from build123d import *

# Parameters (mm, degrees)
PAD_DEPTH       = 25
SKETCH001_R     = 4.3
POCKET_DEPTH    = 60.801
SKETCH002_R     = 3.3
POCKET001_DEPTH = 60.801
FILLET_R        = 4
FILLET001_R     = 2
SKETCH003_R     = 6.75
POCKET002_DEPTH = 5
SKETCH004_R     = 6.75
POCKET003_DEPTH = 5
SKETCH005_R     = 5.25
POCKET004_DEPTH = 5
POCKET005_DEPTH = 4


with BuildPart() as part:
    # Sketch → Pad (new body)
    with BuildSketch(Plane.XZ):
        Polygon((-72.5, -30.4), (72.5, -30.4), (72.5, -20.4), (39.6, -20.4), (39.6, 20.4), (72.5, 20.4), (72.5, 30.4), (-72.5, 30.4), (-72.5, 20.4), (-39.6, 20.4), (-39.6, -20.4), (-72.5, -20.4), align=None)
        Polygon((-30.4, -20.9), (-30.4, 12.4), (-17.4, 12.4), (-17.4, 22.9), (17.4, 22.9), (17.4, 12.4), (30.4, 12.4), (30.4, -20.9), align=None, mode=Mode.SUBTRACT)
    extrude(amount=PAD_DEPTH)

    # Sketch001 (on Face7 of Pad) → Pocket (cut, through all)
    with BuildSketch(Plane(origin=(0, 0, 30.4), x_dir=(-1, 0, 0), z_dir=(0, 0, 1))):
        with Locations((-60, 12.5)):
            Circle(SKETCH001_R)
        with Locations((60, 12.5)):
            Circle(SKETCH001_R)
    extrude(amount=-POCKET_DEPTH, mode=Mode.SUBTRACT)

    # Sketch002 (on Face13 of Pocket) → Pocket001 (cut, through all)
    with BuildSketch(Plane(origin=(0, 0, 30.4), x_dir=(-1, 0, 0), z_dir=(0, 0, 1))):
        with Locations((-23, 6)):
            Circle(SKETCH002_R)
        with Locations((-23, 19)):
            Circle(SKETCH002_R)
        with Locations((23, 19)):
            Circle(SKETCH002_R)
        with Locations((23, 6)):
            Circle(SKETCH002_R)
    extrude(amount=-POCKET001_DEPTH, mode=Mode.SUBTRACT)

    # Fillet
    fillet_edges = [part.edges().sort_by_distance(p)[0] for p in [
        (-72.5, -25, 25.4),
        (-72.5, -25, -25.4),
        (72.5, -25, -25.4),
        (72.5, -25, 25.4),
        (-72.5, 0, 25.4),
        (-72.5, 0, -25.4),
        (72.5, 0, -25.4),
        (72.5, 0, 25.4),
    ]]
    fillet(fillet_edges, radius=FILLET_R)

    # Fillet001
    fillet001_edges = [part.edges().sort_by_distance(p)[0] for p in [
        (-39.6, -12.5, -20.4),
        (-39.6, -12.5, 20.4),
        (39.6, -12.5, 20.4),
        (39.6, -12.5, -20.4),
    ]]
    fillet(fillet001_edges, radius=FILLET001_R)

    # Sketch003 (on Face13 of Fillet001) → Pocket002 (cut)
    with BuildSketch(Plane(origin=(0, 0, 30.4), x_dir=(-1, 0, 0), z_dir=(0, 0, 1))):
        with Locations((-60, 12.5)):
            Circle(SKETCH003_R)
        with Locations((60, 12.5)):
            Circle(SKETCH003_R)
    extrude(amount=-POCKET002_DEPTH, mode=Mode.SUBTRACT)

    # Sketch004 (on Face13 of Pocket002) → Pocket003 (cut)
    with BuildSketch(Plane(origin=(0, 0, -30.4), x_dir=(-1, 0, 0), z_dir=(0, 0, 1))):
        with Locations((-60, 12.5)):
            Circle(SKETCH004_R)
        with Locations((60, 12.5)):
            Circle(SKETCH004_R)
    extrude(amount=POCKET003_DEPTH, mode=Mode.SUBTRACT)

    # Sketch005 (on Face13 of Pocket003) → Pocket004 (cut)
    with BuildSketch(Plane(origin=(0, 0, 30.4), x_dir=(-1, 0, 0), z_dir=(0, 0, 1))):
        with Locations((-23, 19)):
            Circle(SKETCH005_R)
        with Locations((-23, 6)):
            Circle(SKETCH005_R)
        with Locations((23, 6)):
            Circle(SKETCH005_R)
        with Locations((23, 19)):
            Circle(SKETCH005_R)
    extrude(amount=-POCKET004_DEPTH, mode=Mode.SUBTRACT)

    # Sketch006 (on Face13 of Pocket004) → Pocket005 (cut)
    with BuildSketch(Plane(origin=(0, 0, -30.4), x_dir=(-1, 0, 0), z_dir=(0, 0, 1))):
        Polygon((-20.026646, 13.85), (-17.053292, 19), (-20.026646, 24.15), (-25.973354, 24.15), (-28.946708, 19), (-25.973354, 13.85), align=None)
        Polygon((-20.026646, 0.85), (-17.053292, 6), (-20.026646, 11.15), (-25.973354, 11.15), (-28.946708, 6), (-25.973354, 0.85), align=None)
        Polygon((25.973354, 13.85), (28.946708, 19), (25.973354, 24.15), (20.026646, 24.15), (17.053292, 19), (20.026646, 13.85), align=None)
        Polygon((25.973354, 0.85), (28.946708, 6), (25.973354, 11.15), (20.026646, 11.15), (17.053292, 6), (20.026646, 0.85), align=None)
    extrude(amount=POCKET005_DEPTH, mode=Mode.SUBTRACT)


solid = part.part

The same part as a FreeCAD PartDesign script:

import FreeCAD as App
import Part
import Sketcher

V = App.Vector
Q = App.Units.Quantity


def edges_at(feature, points):
    """Names of the edges that pass closest to the given points."""
    edges = feature.Shape.Edges
    near = lambda p: min(range(len(edges)), key=lambda i: edges[i].distToShape(Part.Vertex(*p))[0])
    return sorted({f"Edge{near(p) + 1}" for p in points})


def add_polygon(sketch, points):
    """Adds a closed chain of lines whose ends are joined by coincident constraints."""
    first, n = sketch.GeometryCount, len(points)
    for a, b in zip(points, points[1:] + points[:1]):
        sketch.addGeometry(Part.LineSegment(App.Vector(*a, 0), App.Vector(*b, 0)), False)
    for i in range(n):
        sketch.addConstraint(Sketcher.Constraint("Coincident", first + i, 2, first + (i + 1) % n, 1))

doc = App.newDocument("Part")
body = doc.addObject("PartDesign::Body", "Body")

sketch1 = body.newObject("Sketcher::SketchObject", "Sketch")
sketch1.AttachmentSupport = (doc.getObject("XZ_Plane"), [""])
sketch1.MapMode = "FlatFace"
add_polygon(sketch1, [(-72.5, -30.4), (72.5, -30.4), (72.5, -20.4), (39.6, -20.4), (39.6, 20.4), (72.5, 20.4), (72.5, 30.4), (-72.5, 30.4), (-72.5, 20.4), (-39.6, 20.4), (-39.6, -20.4), (-72.5, -20.4)])
add_polygon(sketch1, [(30.4, -20.9), (-30.4, -20.9), (-30.4, 12.4), (-17.4, 12.4), (-17.4, 22.9), (17.4, 22.9), (17.4, 12.4), (30.4, 12.4)])
sketch1.addConstraint([
    Sketcher.Constraint("Horizontal", 0),
    Sketcher.Constraint("Vertical", 1),
    Sketcher.Constraint("Horizontal", 2),
    Sketcher.Constraint("Vertical", 3),
    Sketcher.Constraint("Horizontal", 4),
    Sketcher.Constraint("Vertical", 5),
    Sketcher.Constraint("Horizontal", 6),
    Sketcher.Constraint("Vertical", 7),
    Sketcher.Constraint("Horizontal", 8),
    Sketcher.Constraint("Vertical", 9),
    Sketcher.Constraint("Horizontal", 10),
    Sketcher.Constraint("Vertical", 11),
    Sketcher.Constraint("Horizontal", 12),
    Sketcher.Constraint("Vertical", 13),
    Sketcher.Constraint("Horizontal", 14),
    Sketcher.Constraint("Vertical", 15),
    Sketcher.Constraint("Horizontal", 16),
    Sketcher.Constraint("Vertical", 17),
    Sketcher.Constraint("Horizontal", 18),
    Sketcher.Constraint("Vertical", 19),
    Sketcher.Constraint("Symmetric", 0, 2, 6, 2, -1, 1),
    Sketcher.Constraint("Symmetric", 2, 2, 8, 2, -1, 1),
    Sketcher.Constraint("Symmetric", 4, 2, 10, 2, -1, 1),
    Sketcher.Constraint("Symmetric", 4, 2, 7, 2, -2),
    Sketcher.Constraint("Symmetric", 14, 2, 17, 2, -2),
    Sketcher.Constraint("Equal", 14, 18),
    Sketcher.Constraint("DistanceX", 0, 1, 0, 2, 145.0),
    Sketcher.Constraint("DistanceX", 14, 1, 14, 2, 13.0),
    Sketcher.Constraint("DistanceY", 1, 1, 1, 2, 10.0),
    Sketcher.Constraint("DistanceX", 2, 2, 2, 1, 32.9),
    Sketcher.Constraint("DistanceX", 12, 2, 12, 1, 60.8),
    Sketcher.Constraint("DistanceY", 3, 1, 3, 2, 40.8),
    Sketcher.Constraint("DistanceY", 13, 1, 13, 2, 33.3),
    Sketcher.Constraint("DistanceY", 15, 1, 15, 2, 10.5),
    Sketcher.Constraint("DistanceY", 13, 2, 8, 2, 8.0),
])
pad1 = body.newObject("PartDesign::Pad", "Pad")
pad1.Profile = sketch1
pad1.Length = 25

sketch2 = body.newObject("Sketcher::SketchObject", "Sketch001")
sketch2.AttachmentSupport = (doc.getObject("XY_Plane"), [""])
sketch2.MapMode = "FlatFace"
sketch2.AttachmentOffset = App.Placement(V(0, 0, 30.4), App.Rotation())
sketch2.addGeometry([
    Part.Circle(V(60, -12.5, 0), V(0, 0, 1), 4.3),
    Part.Circle(V(-60, -12.5, 0), V(0, 0, 1), 4.3),
], False)
sketch2.addConstraint([
    Sketcher.Constraint("Equal", 0, 1),
    Sketcher.Constraint("Symmetric", 0, 3, 1, 3, -2),
    Sketcher.Constraint("Diameter", 0, 8.6),
    Sketcher.Constraint("DistanceX", -1, 1, 0, 3, 60.0),
    Sketcher.Constraint("DistanceY", 0, 3, -1, 1, 12.5),
])
pocket1 = body.newObject("PartDesign::Pocket", "Pocket")
pocket1.Profile = sketch2
pocket1.Type = "ThroughAll"

sketch3 = body.newObject("Sketcher::SketchObject", "Sketch002")
sketch3.AttachmentSupport = (doc.getObject("XY_Plane"), [""])
sketch3.MapMode = "FlatFace"
sketch3.AttachmentOffset = App.Placement(V(0, 0, 30.4), App.Rotation())
sketch3.addGeometry([
    Part.Circle(V(23, -6, 0), V(0, 0, 1), 3.3),
    Part.Circle(V(23, -19, 0), V(0, 0, 1), 3.3),
    Part.Circle(V(-23, -19, 0), V(0, 0, 1), 3.3),
    Part.Circle(V(-23, -6, 0), V(0, 0, 1), 3.3),
], False)
sketch3.addConstraint([
    Sketcher.Constraint("Equal", 0, 1),
    Sketcher.Constraint("Equal", 1, 2),
    Sketcher.Constraint("Equal", 2, 3),
    Sketcher.Constraint("Symmetric", 1, 3, 2, 3, -2),
    Sketcher.Constraint("Symmetric", 0, 3, 3, 3, -2),
    Sketcher.Constraint("Vertical", 0, 3, 1, 3),
    Sketcher.Constraint("Diameter", 0, 6.6),
    Sketcher.Constraint("DistanceX", -1, 1, 0, 3, 23.0),
    Sketcher.Constraint("DistanceY", 0, 3, -1, 1, 6.0),
    Sketcher.Constraint("DistanceY", 1, 3, -1, 1, 19.0),
])
pocket2 = body.newObject("PartDesign::Pocket", "Pocket001")
pocket2.Profile = sketch3
pocket2.Type = "ThroughAll"
doc.recompute()

fillet = body.newObject("PartDesign::Fillet", "Fillet")
fillet.Base = (pocket2, edges_at(pocket2, [
    (-72.5, -25, 25.4),
    (-72.5, -25, -25.4),
    (72.5, -25, -25.4),
    (72.5, -25, 25.4),
    (-72.5, 0, 25.4),
    (-72.5, 0, -25.4),
    (72.5, 0, -25.4),
    (72.5, 0, 25.4),
]))
fillet.Radius = 4
doc.recompute()

fillet2 = body.newObject("PartDesign::Fillet", "Fillet001")
fillet2.Base = (fillet, edges_at(fillet, [
    (-39.6, -12.5, -20.4),
    (-39.6, -12.5, 20.4),
    (39.6, -12.5, 20.4),
    (39.6, -12.5, -20.4),
]))
fillet2.Radius = 2

sketch4 = body.newObject("Sketcher::SketchObject", "Sketch003")
sketch4.AttachmentSupport = (doc.getObject("XY_Plane"), [""])
sketch4.MapMode = "FlatFace"
sketch4.AttachmentOffset = App.Placement(V(0, 0, 30.4), App.Rotation())
sketch4.addGeometry([
    Part.Circle(V(60, -12.5, 0), V(0, 0, 1), 6.75),
    Part.Circle(V(-60, -12.5, 0), V(0, 0, 1), 6.75),
], False)
sketch4.addConstraint([
    Sketcher.Constraint("Equal", 0, 1),
    Sketcher.Constraint("Symmetric", 0, 3, 1, 3, -2),
    Sketcher.Constraint("Diameter", 0, 13.5),
    Sketcher.Constraint("DistanceX", -1, 1, 0, 3, 60.0),
    Sketcher.Constraint("DistanceY", 0, 3, -1, 1, 12.5),
])
pocket3 = body.newObject("PartDesign::Pocket", "Pocket002")
pocket3.Profile = sketch4
pocket3.Length = 5

sketch5 = body.newObject("Sketcher::SketchObject", "Sketch004")
sketch5.AttachmentSupport = (doc.getObject("XY_Plane"), [""])
sketch5.MapMode = "FlatFace"
sketch5.AttachmentOffset = App.Placement(V(0, 0, -30.4), App.Rotation())
sketch5.addGeometry([
    Part.Circle(V(60, -12.5, 0), V(0, 0, 1), 6.75),
    Part.Circle(V(-60, -12.5, 0), V(0, 0, 1), 6.75),
], False)
sketch5.addConstraint([
    Sketcher.Constraint("Equal", 0, 1),
    Sketcher.Constraint("Symmetric", 0, 3, 1, 3, -2),
    Sketcher.Constraint("Diameter", 0, 13.5),
    Sketcher.Constraint("DistanceX", -1, 1, 0, 3, 60.0),
    Sketcher.Constraint("DistanceY", 0, 3, -1, 1, 12.5),
])
pocket4 = body.newObject("PartDesign::Pocket", "Pocket003")
pocket4.Profile = sketch5
pocket4.Length = 5
pocket4.Reversed = True

sketch6 = body.newObject("Sketcher::SketchObject", "Sketch005")
sketch6.AttachmentSupport = (doc.getObject("XY_Plane"), [""])
sketch6.MapMode = "FlatFace"
sketch6.AttachmentOffset = App.Placement(V(0, 0, 30.4), App.Rotation())
sketch6.addGeometry([
    Part.Circle(V(23, -19, 0), V(0, 0, 1), 5.25),
    Part.Circle(V(23, -6, 0), V(0, 0, 1), 5.25),
    Part.Circle(V(-23, -6, 0), V(0, 0, 1), 5.25),
    Part.Circle(V(-23, -19, 0), V(0, 0, 1), 5.25),
], False)
sketch6.addConstraint([
    Sketcher.Constraint("Equal", 0, 1),
    Sketcher.Constraint("Equal", 1, 2),
    Sketcher.Constraint("Equal", 2, 3),
    Sketcher.Constraint("Symmetric", 1, 3, 2, 3, -2),
    Sketcher.Constraint("Symmetric", 0, 3, 3, 3, -2),
    Sketcher.Constraint("Vertical", 0, 3, 1, 3),
    Sketcher.Constraint("Diameter", 0, 10.5),
    Sketcher.Constraint("DistanceX", -1, 1, 0, 3, 23.0),
    Sketcher.Constraint("DistanceY", 0, 3, -1, 1, 19.0),
    Sketcher.Constraint("DistanceY", 1, 3, -1, 1, 6.0),
])
pocket5 = body.newObject("PartDesign::Pocket", "Pocket004")
pocket5.Profile = sketch6
pocket5.Length = 5

sketch7 = body.newObject("Sketcher::SketchObject", "Sketch006")
sketch7.AttachmentSupport = (doc.getObject("XY_Plane"), [""])
sketch7.MapMode = "FlatFace"
sketch7.AttachmentOffset = App.Placement(V(0, 0, -30.4), App.Rotation())
add_polygon(sketch7, [(20.026646, -13.85), (17.053292, -19), (20.026646, -24.15), (25.973354, -24.15), (28.946708, -19), (25.973354, -13.85)])
add_polygon(sketch7, [(20.026646, -0.85), (17.053292, -6), (20.026646, -11.15), (25.973354, -11.15), (28.946708, -6), (25.973354, -0.85)])
add_polygon(sketch7, [(-25.973354, -13.85), (-28.946708, -19), (-25.973354, -24.15), (-20.026646, -24.15), (-17.053292, -19), (-20.026646, -13.85)])
add_polygon(sketch7, [(-25.973354, -0.85), (-28.946708, -6), (-25.973354, -11.15), (-20.026646, -11.15), (-17.053292, -6), (-20.026646, -0.85)])
sketch7.addConstraint([
    Sketcher.Constraint("Horizontal", 2),
    Sketcher.Constraint("Horizontal", 5),
    Sketcher.Constraint("Horizontal", 8),
    Sketcher.Constraint("Horizontal", 11),
    Sketcher.Constraint("Horizontal", 14),
    Sketcher.Constraint("Horizontal", 17),
    Sketcher.Constraint("Horizontal", 20),
    Sketcher.Constraint("Horizontal", 23),
    Sketcher.Constraint("Symmetric", 3, 2, 12, 2, -2),
    Sketcher.Constraint("Symmetric", 2, 2, 13, 2, -2),
    Sketcher.Constraint("Symmetric", 0, 2, 15, 2, -2),
    Sketcher.Constraint("Symmetric", 5, 2, 16, 2, -2),
    Sketcher.Constraint("Symmetric", 9, 2, 18, 2, -2),
    Sketcher.Constraint("Symmetric", 8, 2, 19, 2, -2),
    Sketcher.Constraint("Symmetric", 6, 2, 21, 2, -2),
    Sketcher.Constraint("Symmetric", 11, 2, 22, 2, -2),
    Sketcher.Constraint("Parallel", 0, 3),
    Sketcher.Constraint("Parallel", 1, 4),
    Sketcher.Constraint("Parallel", 3, 6),
    Sketcher.Constraint("Parallel", 4, 7),
    Sketcher.Constraint("Parallel", 6, 9),
    Sketcher.Constraint("Parallel", 7, 10),
    Sketcher.Constraint("Parallel", 9, 12),
    Sketcher.Constraint("Parallel", 10, 13),
    Sketcher.Constraint("Parallel", 12, 15),
    Sketcher.Constraint("Parallel", 15, 18),
    Sketcher.Constraint("Parallel", 18, 21),
    Sketcher.Constraint("Horizontal", 0, 2, 3, 2),
    Sketcher.Constraint("Horizontal", 6, 2, 9, 2),
    Sketcher.Constraint("Vertical", 2, 2, 4, 2),
    Sketcher.Constraint("Vertical", 0, 2, 6, 2),
    Sketcher.Constraint("Vertical", 5, 2, 7, 2),
    Sketcher.Constraint("Vertical", 4, 2, 8, 2),
    Sketcher.Constraint("Vertical", 8, 2, 10, 2),
    Sketcher.Constraint("Angle", 0, Q("-120.000001 deg")),
    Sketcher.Constraint("DistanceY", 0, 2, -1, 1, 19.0),
    Sketcher.Constraint("DistanceY", 6, 2, -1, 1, 6.0),
    Sketcher.Constraint("DistanceX", 12, 2, 0, 2, 46.0),
    Sketcher.Constraint("DistanceY", 2, 2, 4, 2, 10.3),
    Sketcher.Constraint("DistanceX", 2, 1, 2, 2, 5.946708),
])
pocket6 = body.newObject("PartDesign::Pocket", "Pocket005")
pocket6.Profile = sketch7
pocket6.Length = 4
pocket6.Reversed = True

doc.recompute()
